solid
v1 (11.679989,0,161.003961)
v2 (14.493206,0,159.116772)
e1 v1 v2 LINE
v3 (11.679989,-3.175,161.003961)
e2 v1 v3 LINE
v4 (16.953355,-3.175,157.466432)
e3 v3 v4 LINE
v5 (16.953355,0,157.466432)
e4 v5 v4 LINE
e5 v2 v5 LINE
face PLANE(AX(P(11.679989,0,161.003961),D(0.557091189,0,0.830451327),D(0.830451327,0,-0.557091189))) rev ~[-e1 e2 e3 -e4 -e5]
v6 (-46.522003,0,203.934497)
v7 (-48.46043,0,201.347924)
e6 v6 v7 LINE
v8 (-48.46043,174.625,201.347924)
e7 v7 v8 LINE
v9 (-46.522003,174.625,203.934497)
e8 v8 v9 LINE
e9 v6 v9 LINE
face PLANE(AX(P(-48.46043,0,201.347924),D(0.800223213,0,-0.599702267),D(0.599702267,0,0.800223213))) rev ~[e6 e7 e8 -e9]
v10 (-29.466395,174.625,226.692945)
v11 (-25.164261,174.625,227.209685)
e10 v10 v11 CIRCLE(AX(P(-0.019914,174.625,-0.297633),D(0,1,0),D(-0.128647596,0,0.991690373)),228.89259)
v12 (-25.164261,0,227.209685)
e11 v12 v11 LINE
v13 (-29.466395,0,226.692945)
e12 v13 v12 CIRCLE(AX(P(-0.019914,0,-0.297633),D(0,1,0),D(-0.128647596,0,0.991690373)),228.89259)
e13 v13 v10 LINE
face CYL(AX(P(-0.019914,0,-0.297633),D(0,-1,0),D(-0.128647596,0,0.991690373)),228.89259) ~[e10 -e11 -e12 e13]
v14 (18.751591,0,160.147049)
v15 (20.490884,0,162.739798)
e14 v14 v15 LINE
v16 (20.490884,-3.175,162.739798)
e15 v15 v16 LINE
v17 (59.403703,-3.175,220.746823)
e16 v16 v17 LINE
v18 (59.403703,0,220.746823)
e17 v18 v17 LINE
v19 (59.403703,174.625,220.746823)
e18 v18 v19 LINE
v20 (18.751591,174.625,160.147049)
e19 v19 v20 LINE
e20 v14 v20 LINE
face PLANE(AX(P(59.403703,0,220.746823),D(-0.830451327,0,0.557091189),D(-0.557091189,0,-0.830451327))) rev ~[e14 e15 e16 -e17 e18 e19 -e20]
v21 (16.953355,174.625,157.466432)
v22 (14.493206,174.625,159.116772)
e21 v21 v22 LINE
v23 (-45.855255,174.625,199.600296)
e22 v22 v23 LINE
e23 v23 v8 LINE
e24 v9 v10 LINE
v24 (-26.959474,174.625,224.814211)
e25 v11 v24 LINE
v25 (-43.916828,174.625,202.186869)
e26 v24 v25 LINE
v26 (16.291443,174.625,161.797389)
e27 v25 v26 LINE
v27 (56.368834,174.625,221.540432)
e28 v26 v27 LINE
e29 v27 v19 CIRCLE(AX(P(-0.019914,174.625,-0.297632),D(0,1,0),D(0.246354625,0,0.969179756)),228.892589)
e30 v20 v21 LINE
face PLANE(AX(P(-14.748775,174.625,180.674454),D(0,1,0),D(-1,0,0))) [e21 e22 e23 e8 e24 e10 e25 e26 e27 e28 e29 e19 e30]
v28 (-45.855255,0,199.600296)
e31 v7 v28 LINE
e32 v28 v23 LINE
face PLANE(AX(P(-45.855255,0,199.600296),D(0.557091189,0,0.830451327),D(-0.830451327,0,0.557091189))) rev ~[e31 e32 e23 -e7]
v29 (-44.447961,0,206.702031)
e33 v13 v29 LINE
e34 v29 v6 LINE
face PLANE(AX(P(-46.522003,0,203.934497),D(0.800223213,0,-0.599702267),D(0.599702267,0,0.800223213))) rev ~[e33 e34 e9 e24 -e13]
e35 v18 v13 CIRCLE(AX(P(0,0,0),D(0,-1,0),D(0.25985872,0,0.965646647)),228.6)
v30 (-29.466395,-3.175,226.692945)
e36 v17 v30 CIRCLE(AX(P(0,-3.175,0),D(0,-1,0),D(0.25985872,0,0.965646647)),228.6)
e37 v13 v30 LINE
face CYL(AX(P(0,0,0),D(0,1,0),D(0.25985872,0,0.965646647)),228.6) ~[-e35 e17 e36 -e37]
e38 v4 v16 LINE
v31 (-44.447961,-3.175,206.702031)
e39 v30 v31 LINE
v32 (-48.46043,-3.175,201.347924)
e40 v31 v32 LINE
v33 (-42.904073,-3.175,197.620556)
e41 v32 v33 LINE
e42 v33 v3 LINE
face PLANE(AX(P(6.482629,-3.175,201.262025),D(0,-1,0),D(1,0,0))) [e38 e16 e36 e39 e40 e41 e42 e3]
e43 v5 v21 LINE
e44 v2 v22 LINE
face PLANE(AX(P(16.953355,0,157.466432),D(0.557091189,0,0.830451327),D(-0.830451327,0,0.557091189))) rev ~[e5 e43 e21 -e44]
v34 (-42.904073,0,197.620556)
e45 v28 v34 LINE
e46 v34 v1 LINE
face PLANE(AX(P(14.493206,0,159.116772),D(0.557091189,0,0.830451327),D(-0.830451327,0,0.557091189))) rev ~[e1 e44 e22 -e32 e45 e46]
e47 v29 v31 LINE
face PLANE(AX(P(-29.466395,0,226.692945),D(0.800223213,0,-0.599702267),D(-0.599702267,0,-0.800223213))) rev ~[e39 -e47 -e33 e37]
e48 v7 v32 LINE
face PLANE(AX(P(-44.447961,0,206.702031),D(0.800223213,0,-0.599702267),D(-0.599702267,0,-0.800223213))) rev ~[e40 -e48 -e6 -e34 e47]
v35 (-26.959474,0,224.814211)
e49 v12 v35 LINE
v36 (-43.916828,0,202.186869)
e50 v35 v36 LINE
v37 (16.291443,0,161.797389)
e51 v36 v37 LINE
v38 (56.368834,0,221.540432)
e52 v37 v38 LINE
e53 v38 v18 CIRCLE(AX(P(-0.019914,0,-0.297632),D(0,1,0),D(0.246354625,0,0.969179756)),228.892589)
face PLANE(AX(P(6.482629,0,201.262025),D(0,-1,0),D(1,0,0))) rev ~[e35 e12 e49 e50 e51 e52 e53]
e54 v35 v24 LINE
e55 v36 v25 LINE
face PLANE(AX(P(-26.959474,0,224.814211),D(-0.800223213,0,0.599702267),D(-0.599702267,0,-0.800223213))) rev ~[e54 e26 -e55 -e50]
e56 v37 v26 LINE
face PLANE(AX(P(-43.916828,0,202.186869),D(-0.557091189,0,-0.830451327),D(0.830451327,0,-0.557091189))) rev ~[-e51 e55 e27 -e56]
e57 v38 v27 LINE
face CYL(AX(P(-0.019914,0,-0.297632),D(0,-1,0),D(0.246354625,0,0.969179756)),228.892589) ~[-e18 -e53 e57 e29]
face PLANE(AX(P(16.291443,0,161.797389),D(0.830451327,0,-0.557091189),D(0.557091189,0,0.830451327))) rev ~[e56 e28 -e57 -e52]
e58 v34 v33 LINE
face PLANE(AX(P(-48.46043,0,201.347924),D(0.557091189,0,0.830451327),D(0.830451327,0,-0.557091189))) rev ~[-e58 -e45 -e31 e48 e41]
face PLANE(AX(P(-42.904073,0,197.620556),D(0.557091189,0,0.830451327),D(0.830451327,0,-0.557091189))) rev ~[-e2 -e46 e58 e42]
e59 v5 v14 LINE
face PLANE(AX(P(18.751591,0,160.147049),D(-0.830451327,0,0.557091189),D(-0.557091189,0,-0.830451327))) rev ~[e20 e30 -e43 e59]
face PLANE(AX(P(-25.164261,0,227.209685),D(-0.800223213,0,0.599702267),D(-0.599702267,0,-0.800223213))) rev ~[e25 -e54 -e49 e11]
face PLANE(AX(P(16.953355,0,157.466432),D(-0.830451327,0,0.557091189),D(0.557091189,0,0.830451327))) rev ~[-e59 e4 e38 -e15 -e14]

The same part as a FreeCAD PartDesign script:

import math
import FreeCAD as App
import Part
import Sketcher

V = App.Vector
Q = App.Units.Quantity

doc = App.newDocument("Part")
body = doc.addObject("PartDesign::Body", "Body")

# Sketch on XZ plane
sketch1 = doc.addObject("Sketcher::SketchObject", "Sketch")
body.addObject(sketch1)
sketch1.AttachmentSupport = (doc.XZ_Plane, [""])
sketch1.MapMode = "FlatFace"
sketch1.addGeometry(Part.LineSegment(V(20.490884, 162.739798, 0), V(59.403703, 220.746823, 0)), False)
sketch1.addGeometry(Part.ArcOfCircle(Part.Circle(V(0, 0, 0), V(0, 0, 1), 228.6), math.radians(74.938321), math.radians(97.405996)), False)
sketch1.addGeometry(Part.LineSegment(V(-29.466395, 226.692945, 0), V(-44.447961, 206.702031, 0)), False)
sketch1.addGeometry(Part.LineSegment(V(-44.447961, 206.702031, 0), V(-48.46043, 201.347924, 0)), False)
sketch1.addGeometry(Part.LineSegment(V(-48.46043, 201.347924, 0), V(-42.904073, 197.620556, 0)), False)
sketch1.addGeometry(Part.LineSegment(V(-42.904073, 197.620556, 0), V(11.679989, 161.003961, 0)), False)
sketch1.addGeometry(Part.LineSegment(V(11.679989, 161.003961, 0), V(16.953355, 157.466432, 0)), False)
sketch1.addGeometry(Part.LineSegment(V(16.953355, 157.466432, 0), V(20.490884, 162.739798, 0)), False)
sketch1.addConstraint(Sketcher.Constraint("Coincident", 0, 2, 1, 1))
sketch1.addConstraint(Sketcher.Constraint("Coincident", 1, 2, 2, 1))
sketch1.addConstraint(Sketcher.Constraint("Coincident", 2, 2, 3, 1))
sketch1.addConstraint(Sketcher.Constraint("Coincident", 3, 2, 4, 1))
sketch1.addConstraint(Sketcher.Constraint("Coincident", 4, 2, 5, 1))
sketch1.addConstraint(Sketcher.Constraint("Coincident", 5, 2, 6, 1))
sketch1.addConstraint(Sketcher.Constraint("Coincident", 6, 2, 7, 1))
sketch1.addConstraint(Sketcher.Constraint("Coincident", 7, 2, 0, 1))
sketch1.addConstraint(Sketcher.Constraint("Coincident", 1, 3, -1, 1))
sketch1.addConstraint(Sketcher.Constraint("Parallel", 2, 3))
sketch1.addConstraint(Sketcher.Constraint("Perpendicular", 0, 4))
sketch1.addConstraint(Sketcher.Constraint("Parallel", 4, 5))
sketch1.addConstraint(Sketcher.Constraint("Parallel", 5, 6))
sketch1.addConstraint(Sketcher.Constraint("Perpendicular", 6, 7))
sketch1.addConstraint(Sketcher.Constraint("Equal", 3, 4))
sketch1.addConstraint(Sketcher.Constraint("Equal", 6, 7))
sketch1.addConstraint(Sketcher.Constraint("Radius", 1, Q("9 in")))
sketch1.addConstraint(Sketcher.Constraint("Distance", 0, Q("2.75 in")))
sketch1.addConstraint(Sketcher.Constraint("Distance", 6, Q("0.25 in")))
sketch1.addConstraint(Sketcher.Constraint("DistanceY", -1, 1, 7, 2, 162.739798))
sketch1.addConstraint(Sketcher.Constraint("DistanceX", 1, 2, 0, 2, 88.870099))
sketch1.addConstraint(Sketcher.Constraint("DistanceY", 3, 2, 0, 2, 19.3989))
sketch1.addConstraint(Sketcher.Constraint("DistanceY", 6, 2, 2, 2, 49.235599))
sketch1.addConstraint(Sketcher.Constraint("Distance", 5, 65.728189))
pad1 = doc.addObject("PartDesign::Pad", "Pad")
body.addObject(pad1)
pad1.Profile = sketch1
pad1.Length = Q("0.125 in")

# Sketch on XZ plane
sketch2 = doc.addObject("Sketcher::SketchObject", "Sketch001")
body.addObject(sketch2)
sketch2.AttachmentSupport = (doc.XZ_Plane, [""])
sketch2.MapMode = "FlatFace"
sketch2.addGeometry(Part.LineSegment(V(14.493206, 159.116772, 0), V(-45.855255, 199.600296, 0)), False)
sketch2.addGeometry(Part.LineSegment(V(-45.855255, 199.600296, 0), V(-48.46043, 201.347924, 0)), False)
sketch2.addGeometry(Part.LineSegment(V(-48.46043, 201.347924, 0), V(-46.522003, 203.934497, 0)), False)
sketch2.addGeometry(Part.LineSegment(V(-46.522003, 203.934497, 0), V(-29.466395, 226.692945, 0)), False)
sketch2.addGeometry(Part.ArcOfCircle(Part.Circle(V(-0.019914, -0.297633, 0), V(0, 0, 1), 228.89259), math.radians(96.306794), math.radians(97.391449)), False)
sketch2.addGeometry(Part.LineSegment(V(-25.164261, 227.209685, 0), V(-26.959474, 224.814211, 0)), False)
sketch2.addGeometry(Part.LineSegment(V(-26.959474, 224.814211, 0), V(-43.916828, 202.186869, 0)), False)
sketch2.addGeometry(Part.LineSegment(V(-43.916828, 202.186869, 0), V(16.291443, 161.797389, 0)), False)
sketch2.addGeometry(Part.LineSegment(V(16.291443, 161.797389, 0), V(56.368834, 221.540432, 0)), False)
sketch2.addGeometry(Part.ArcOfCircle(Part.Circle(V(-0.019914, -0.297632, 0), V(0, 0, 1), 228.892589), math.radians(74.952867), math.radians(75.738098)), False)
sketch2.addGeometry(Part.LineSegment(V(59.403703, 220.746823, 0), V(18.751591, 160.147049, 0)), False)
sketch2.addGeometry(Part.LineSegment(V(18.751591, 160.147049, 0), V(16.953355, 157.466432, 0)), False)
sketch2.addGeometry(Part.LineSegment(V(16.953355, 157.466432, 0), V(14.493206, 159.116772, 0)), False)
sketch2.addConstraint(Sketcher.Constraint("Coincident", 0, 2, 1, 1))
sketch2.addConstraint(Sketcher.Constraint("Coincident", 1, 2, 2, 1))
sketch2.addConstraint(Sketcher.Constraint("Coincident", 2, 2, 3, 1))
sketch2.addConstraint(Sketcher.Constraint("Coincident", 3, 2, 4, 2))
sketch2.addConstraint(Sketcher.Constraint("Coincident", 4, 1, 5, 1))
sketch2.addConstraint(Sketcher.Constraint("Coincident", 5, 2, 6, 1))
sketch2.addConstraint(Sketcher.Constraint("Coincident", 6, 2, 7, 1))
sketch2.addConstraint(Sketcher.Constraint("Coincident", 7, 2, 8, 1))
sketch2.addConstraint(Sketcher.Constraint("Coincident", 8, 2, 9, 2))
sketch2.addConstraint(Sketcher.Constraint("Coincident", 9, 1, 10, 1))
sketch2.addConstraint(Sketcher.Constraint("Coincident", 10, 2, 11, 1))
sketch2.addConstraint(Sketcher.Constraint("Coincident", 11, 2, 12, 1))
sketch2.addConstraint(Sketcher.Constraint("Coincident", 12, 2, 0, 1))
sketch2.addConstraint(Sketcher.Constraint("Coincident", 9, 3, 4, 3))
sketch2.addConstraint(Sketcher.Constraint("Equal", 4, 9))
sketch2.addConstraint(Sketcher.Constraint("Parallel", 0, 1))
sketch2.addConstraint(Sketcher.Constraint("Parallel", 2, 3))
sketch2.addConstraint(Sketcher.Constraint("Parallel", 3, 5))
sketch2.addConstraint(Sketcher.Constraint("Parallel", 5, 6))
sketch2.addConstraint(Sketcher.Constraint("Parallel", 1, 7))
sketch2.addConstraint(Sketcher.Constraint("Perpendicular", 7, 8))
sketch2.addConstraint(Sketcher.Constraint("Parallel", 8, 10))
sketch2.addConstraint(Sketcher.Constraint("Parallel", 10, 11))
sketch2.addConstraint(Sketcher.Constraint("Perpendicular", 11, 12))
sketch2.addConstraint(Sketcher.Constraint("Radius", 4, 228.89259))
sketch2.addConstraint(Sketcher.Constraint("DistanceY", 0, 2, 2, 2, 4.334201))
sketch2.addConstraint(Sketcher.Constraint("DistanceX", 1, 2, 6, 2, 4.543601))
sketch2.addConstraint(Sketcher.Constraint("DistanceX", 3, 2, 9, 1, 88.870099))
sketch2.addConstraint(Sketcher.Constraint("DistanceY", 11, 2, 8, 2, 64.074))
sketch2.addConstraint(Sketcher.Constraint("Distance", 1, 3.137059))
sketch2.addConstraint(Sketcher.Constraint("Distance", 6, 28.276289))
sketch2.addConstraint(Sketcher.Constraint("Distance", 8, 71.940451))
sketch2.addConstraint(Sketcher.Constraint("DistanceY", 9, 3, -1, 1, 0.297632))
sketch2.addConstraint(Sketcher.Constraint("DistanceX", 1, 2, -1, 1, 48.46043))
sketch2.addConstraint(Sketcher.Constraint("DistanceY", -1, 1, 5, 2, 224.814211))
sketch2.addConstraint(Sketcher.Constraint("DistanceY", -1, 1, 6, 2, 202.186869))
sketch2.addConstraint(Sketcher.Constraint("DistanceY", -1, 1, 7, 2, 161.797389))
sketch2.addConstraint(Sketcher.Constraint("DistanceY", -1, 1, 8, 2, 221.540432))
sketch2.addConstraint(Sketcher.Constraint("DistanceX", -1, 1, 10, 2, 18.751591))
sketch2.addConstraint(Sketcher.Constraint("DistanceX", 12, 2, 11, 2, 2.460148))
pad2 = doc.addObject("PartDesign::Pad", "Pad001")
body.addObject(pad2)
pad2.Profile = sketch2
pad2.Length = Q("6.875 in")
pad2.Reversed = True

doc.recompute()
